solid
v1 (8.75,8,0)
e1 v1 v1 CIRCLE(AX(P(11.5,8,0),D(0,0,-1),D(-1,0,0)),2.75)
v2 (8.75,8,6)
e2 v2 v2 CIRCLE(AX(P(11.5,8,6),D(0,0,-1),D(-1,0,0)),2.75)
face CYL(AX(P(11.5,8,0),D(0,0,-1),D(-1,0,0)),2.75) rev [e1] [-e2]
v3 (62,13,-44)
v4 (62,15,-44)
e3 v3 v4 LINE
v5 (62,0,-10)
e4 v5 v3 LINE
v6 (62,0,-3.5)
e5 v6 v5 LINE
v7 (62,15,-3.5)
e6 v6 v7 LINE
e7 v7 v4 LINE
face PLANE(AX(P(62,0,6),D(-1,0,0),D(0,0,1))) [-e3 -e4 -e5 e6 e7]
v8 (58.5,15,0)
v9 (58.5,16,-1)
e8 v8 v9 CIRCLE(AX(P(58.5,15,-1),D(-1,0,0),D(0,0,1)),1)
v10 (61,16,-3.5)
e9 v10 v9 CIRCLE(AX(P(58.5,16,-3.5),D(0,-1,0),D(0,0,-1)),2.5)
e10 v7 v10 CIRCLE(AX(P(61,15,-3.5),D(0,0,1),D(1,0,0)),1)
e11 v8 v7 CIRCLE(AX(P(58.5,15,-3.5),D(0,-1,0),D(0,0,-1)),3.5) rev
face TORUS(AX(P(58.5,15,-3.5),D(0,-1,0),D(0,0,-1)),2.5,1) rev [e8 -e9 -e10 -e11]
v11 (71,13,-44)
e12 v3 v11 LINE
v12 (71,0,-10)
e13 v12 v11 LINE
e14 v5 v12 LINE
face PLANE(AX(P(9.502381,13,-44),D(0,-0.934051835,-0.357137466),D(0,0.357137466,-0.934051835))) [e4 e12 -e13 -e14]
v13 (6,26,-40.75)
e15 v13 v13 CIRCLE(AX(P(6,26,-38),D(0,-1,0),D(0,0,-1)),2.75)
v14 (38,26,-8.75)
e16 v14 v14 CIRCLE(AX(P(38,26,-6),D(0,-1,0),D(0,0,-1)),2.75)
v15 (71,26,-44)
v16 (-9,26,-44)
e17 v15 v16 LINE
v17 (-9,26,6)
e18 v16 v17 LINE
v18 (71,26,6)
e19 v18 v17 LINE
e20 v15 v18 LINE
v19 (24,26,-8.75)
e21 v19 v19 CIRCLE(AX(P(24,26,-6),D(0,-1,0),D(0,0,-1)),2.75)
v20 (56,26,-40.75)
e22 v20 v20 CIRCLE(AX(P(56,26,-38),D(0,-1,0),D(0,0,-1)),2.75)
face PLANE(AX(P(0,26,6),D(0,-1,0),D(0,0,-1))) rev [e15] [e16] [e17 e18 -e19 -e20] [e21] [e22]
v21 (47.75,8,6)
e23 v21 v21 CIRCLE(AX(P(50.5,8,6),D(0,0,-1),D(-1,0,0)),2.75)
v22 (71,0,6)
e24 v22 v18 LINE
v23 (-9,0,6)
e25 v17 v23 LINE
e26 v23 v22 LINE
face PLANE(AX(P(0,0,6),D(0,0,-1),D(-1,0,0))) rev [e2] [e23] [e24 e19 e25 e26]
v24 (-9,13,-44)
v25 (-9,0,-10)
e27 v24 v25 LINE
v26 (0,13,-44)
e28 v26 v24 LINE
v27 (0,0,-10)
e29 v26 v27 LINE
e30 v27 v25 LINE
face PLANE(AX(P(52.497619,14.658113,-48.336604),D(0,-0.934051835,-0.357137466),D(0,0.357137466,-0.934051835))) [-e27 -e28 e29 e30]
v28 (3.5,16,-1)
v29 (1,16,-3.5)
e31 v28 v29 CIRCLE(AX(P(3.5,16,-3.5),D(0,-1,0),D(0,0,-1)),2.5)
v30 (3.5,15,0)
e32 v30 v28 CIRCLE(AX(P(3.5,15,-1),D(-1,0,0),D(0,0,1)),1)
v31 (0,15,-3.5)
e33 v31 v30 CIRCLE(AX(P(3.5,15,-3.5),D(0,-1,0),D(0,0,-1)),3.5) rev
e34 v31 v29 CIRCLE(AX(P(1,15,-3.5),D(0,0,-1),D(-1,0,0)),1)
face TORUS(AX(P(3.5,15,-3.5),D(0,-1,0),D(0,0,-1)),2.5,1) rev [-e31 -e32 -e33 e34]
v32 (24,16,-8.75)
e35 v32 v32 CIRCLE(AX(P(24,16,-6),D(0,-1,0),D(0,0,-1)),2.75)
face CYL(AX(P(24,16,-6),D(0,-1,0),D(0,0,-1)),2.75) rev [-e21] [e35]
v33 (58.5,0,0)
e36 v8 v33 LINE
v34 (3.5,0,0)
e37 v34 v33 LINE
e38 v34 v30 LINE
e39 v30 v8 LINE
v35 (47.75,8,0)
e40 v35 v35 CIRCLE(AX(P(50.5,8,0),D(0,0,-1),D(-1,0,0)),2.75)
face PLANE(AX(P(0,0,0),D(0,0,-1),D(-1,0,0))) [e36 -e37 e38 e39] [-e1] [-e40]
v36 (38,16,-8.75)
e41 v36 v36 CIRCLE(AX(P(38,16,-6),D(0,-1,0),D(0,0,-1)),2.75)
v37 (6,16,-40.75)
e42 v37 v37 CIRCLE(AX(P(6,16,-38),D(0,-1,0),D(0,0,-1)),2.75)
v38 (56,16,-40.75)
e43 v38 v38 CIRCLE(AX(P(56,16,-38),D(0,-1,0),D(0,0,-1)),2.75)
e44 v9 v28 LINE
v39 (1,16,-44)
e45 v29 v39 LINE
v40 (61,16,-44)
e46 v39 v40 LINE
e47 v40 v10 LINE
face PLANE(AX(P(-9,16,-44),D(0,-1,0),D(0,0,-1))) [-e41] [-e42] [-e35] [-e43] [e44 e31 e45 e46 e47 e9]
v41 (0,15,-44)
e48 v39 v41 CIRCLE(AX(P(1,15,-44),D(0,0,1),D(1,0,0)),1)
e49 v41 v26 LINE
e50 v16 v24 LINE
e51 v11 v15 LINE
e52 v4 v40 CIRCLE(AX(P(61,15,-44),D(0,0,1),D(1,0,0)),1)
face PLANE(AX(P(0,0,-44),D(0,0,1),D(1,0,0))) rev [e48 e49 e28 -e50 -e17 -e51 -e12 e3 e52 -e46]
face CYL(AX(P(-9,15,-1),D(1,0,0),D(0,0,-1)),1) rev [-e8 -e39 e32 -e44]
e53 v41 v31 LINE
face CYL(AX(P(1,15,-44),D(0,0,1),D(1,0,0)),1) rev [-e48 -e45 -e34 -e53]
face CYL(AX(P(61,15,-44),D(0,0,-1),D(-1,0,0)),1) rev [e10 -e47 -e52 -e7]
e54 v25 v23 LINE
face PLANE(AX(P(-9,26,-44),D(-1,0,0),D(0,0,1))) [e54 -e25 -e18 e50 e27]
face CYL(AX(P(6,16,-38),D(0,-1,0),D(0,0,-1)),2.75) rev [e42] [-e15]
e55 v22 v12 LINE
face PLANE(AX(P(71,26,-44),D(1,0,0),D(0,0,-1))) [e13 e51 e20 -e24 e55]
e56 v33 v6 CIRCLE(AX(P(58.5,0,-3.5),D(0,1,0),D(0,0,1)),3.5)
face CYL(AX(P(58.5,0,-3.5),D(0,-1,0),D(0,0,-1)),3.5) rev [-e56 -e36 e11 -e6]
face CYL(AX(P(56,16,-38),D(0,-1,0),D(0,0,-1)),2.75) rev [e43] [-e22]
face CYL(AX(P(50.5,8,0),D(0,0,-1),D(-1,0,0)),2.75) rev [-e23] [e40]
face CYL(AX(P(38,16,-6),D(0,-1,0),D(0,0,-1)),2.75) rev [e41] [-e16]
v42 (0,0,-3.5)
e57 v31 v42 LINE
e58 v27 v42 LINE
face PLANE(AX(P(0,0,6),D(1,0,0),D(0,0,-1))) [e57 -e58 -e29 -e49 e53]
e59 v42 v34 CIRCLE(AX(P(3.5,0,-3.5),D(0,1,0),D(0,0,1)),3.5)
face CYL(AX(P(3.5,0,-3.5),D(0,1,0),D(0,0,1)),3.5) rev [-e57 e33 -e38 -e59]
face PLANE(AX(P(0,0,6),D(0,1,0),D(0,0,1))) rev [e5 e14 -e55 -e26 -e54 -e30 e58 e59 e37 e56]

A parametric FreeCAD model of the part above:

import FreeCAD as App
import Part
import Sketcher

V = App.Vector
Q = App.Units.Quantity


def edges_at(feature, points):
    """Names of the edges that pass closest to the given points."""
    edges = feature.Shape.Edges
    near = lambda p: min(range(len(edges)), key=lambda i: edges[i].distToShape(Part.Vertex(*p))[0])
    return sorted({f"Edge{near(p) + 1}" for p in points})

doc = App.newDocument("Part")
params = doc.addObject("Spreadsheet::Sheet", "Params")
for row, (alias, value) in enumerate([
    ("sketch1_width", "62 mm"),
    ("sketch1_height", "26 mm"),
    ("pad1_length", "6 mm"),
    ("sketch2_width", "80 mm"),
    ("sketch2_height", "10 mm"),
    ("pad2_length", "50 mm"),
    ("sketch3_diameter", "5.5 mm"),
    ("hole_diameter", "5.5 mm"),
    ("hole_depth", "10 mm"),
    ("sketch4_width", "3 mm"),
    ("sketch4_width2", "16 mm"),
    ("sketch4_height", "50 mm"),
    ("pad3_length", "9 mm"),
    ("sketch5_width", "3 mm"),
    ("sketch5_width2", "16 mm"),
    ("sketch5_height", "50 mm"),
    ("pad4_length", "9 mm"),
    ("sketch6_diameter", "5.5 mm"),
    ("hole2_diameter", "5.5 mm"),
    ("hole2_depth", "10 mm"),
    ("fillet_radius", "3.5 mm"),
    ("fillet2_radius", "1 mm"),
], start=1):
    params.set(f"A{row}", alias)
    params.set(f"B{row}", "=" + value)
    params.setAlias(f"B{row}", alias)

body = doc.addObject("PartDesign::Body", "Body")

sketch1 = body.newObject("Sketcher::SketchObject", "Sketch")
sketch1.AttachmentSupport = (doc.getObject("XY_Plane"), [""])
sketch1.MapMode = "FlatFace"
sketch1.addGeometry(Part.LineSegment(V(0, 26, 0), V(0, 0, 0)), False)
sketch1.addGeometry(Part.LineSegment(V(0, 0, 0), V(62, 0, 0)), False)
sketch1.addGeometry(Part.LineSegment(V(62, 0, 0), V(62, 26, 0)), False)
sketch1.addGeometry(Part.LineSegment(V(62, 26, 0), V(0, 26, 0)), False)
sketch1.addConstraint(Sketcher.Constraint("Coincident", 0, 2, 1, 1))
sketch1.addConstraint(Sketcher.Constraint("Coincident", 1, 2, 2, 1))
sketch1.addConstraint(Sketcher.Constraint("Coincident", 2, 2, 3, 1))
sketch1.addConstraint(Sketcher.Constraint("Coincident", 3, 2, 0, 1))
sketch1.addConstraint(Sketcher.Constraint("Vertical", 0))
sketch1.addConstraint(Sketcher.Constraint("Horizontal", 1))
sketch1.addConstraint(Sketcher.Constraint("Vertical", 2))
sketch1.addConstraint(Sketcher.Constraint("Horizontal", 3))
sketch1.addConstraint(Sketcher.Constraint("Coincident", 0, 2, -1, 1))
sketch1.addConstraint(Sketcher.Constraint("DistanceX", 1, 1, 1, 2, Q("62 mm")))
sketch1.addConstraint(Sketcher.Constraint("DistanceY", 0, 2, 0, 1, Q("26 mm")))
sketch1.setExpression("Constraints[9]", "Params.sketch1_width")
sketch1.setExpression("Constraints[10]", "Params.sketch1_height")
pad1 = body.newObject("PartDesign::Pad", "Pad")
pad1.Profile = sketch1
pad1.setExpression("Length", "Params.pad1_length")

sketch2 = body.newObject("Sketcher::SketchObject", "Sketch001")
sketch2.AttachmentSupport = (doc.getObject("XY_Plane"), [""])
sketch2.MapMode = "FlatFace"
sketch2.AttachmentOffset = App.Placement(V(0, 0, 6), App.Rotation())
sketch2.addGeometry(Part.LineSegment(V(-9, 26, 0), V(-9, 16, 0)), False)
sketch2.addGeometry(Part.LineSegment(V(-9, 16, 0), V(71, 16, 0)), False)
sketch2.addGeometry(Part.LineSegment(V(71, 16, 0), V(71, 26, 0)), False)
sketch2.addGeometry(Part.LineSegment(V(71, 26, 0), V(-9, 26, 0)), False)
sketch2.addConstraint(Sketcher.Constraint("Coincident", 0, 2, 1, 1))
sketch2.addConstraint(Sketcher.Constraint("Coincident", 1, 2, 2, 1))
sketch2.addConstraint(Sketcher.Constraint("Coincident", 2, 2, 3, 1))
sketch2.addConstraint(Sketcher.Constraint("Coincident", 3, 2, 0, 1))
sketch2.addConstraint(Sketcher.Constraint("Vertical", 0))
sketch2.addConstraint(Sketcher.Constraint("Horizontal", 1))
sketch2.addConstraint(Sketcher.Constraint("Vertical", 2))
sketch2.addConstraint(Sketcher.Constraint("Horizontal", 3))
sketch2.addConstraint(Sketcher.Constraint("DistanceX", 1, 1, 1, 2, Q("80 mm")))
sketch2.addConstraint(Sketcher.Constraint("DistanceY", 0, 2, 0, 1, Q("10 mm")))
sketch2.addConstraint(Sketcher.Constraint("DistanceX", 0, 2, -1, 1, Q("9 mm")))
sketch2.addConstraint(Sketcher.Constraint("DistanceY", -1, 1, 0, 2, Q("16 mm")))
sketch2.setExpression("Constraints[8]", "Params.sketch2_width")
sketch2.setExpression("Constraints[9]", "Params.sketch2_height")
pad2 = body.newObject("PartDesign::Pad", "Pad001")
pad2.Profile = sketch2
pad2.setExpression("Length", "Params.pad2_length")
pad2.Reversed = True

sketch3 = body.newObject("Sketcher::SketchObject", "Sketch002")
sketch3.AttachmentSupport = (doc.getObject("XY_Plane"), [""])
sketch3.MapMode = "FlatFace"
sketch3.addGeometry(Part.Circle(V(50.5, 8, 0), V(0, 0, 1), 2.8), False)
sketch3.addGeometry(Part.Circle(V(11.5, 8, 0), V(0, 0, 1), 2.8), False)
sketch3.addConstraint(Sketcher.Constraint("Equal", 0, 1))
sketch3.addConstraint(Sketcher.Constraint("Horizontal", 0, 3, 1, 3))
sketch3.addConstraint(Sketcher.Constraint("Diameter", 0, Q("5.5 mm")))
sketch3.addConstraint(Sketcher.Constraint("DistanceY", -1, 1, 0, 3, Q("8 mm")))
sketch3.addConstraint(Sketcher.Constraint("DistanceX", 1, 3, 0, 3, Q("39 mm")))
sketch3.addConstraint(Sketcher.Constraint("DistanceX", -1, 1, 0, 3, Q("50.5 mm")))
sketch3.setExpression("Constraints[2]", "Params.sketch3_diameter")
doc.recompute()
hole = body.newObject("PartDesign::Hole", "Hole")
hole.Profile = sketch3
hole.ThreadType = "None"
hole.setExpression("Diameter", "Params.hole_diameter")
hole.DepthType = "Dimension"
hole.setExpression("Depth", "Params.hole_depth")
hole.DrillPoint = "Angled"
hole.DrillPointAngle = 118
hole.Reversed = True

sketch4 = body.newObject("Sketcher::SketchObject", "Sketch003")
sketch4.AttachmentSupport = (doc.getObject("YZ_Plane"), [""])
sketch4.MapMode = "FlatFace"
sketch4.AttachmentOffset = App.Placement(V(0, 0, 71), App.Rotation())
sketch4.addGeometry(Part.LineSegment(V(0, 6, 0), V(0, -10, 0)), False)
sketch4.addGeometry(Part.LineSegment(V(0, -10, 0), V(13, -44, 0)), False)
sketch4.addGeometry(Part.LineSegment(V(13, -44, 0), V(16, -44, 0)), False)
sketch4.addGeometry(Part.LineSegment(V(16, -44, 0), V(16, 6, 0)), False)
sketch4.addGeometry(Part.LineSegment(V(16, 6, 0), V(0, 6, 0)), False)
sketch4.addConstraint(Sketcher.Constraint("Coincident", 0, 2, 1, 1))
sketch4.addConstraint(Sketcher.Constraint("Coincident", 1, 2, 2, 1))
sketch4.addConstraint(Sketcher.Constraint("Coincident", 2, 2, 3, 1))
sketch4.addConstraint(Sketcher.Constraint("Coincident", 3, 2, 4, 1))
sketch4.addConstraint(Sketcher.Constraint("Coincident", 4, 2, 0, 1))
sketch4.addConstraint(Sketcher.Constraint("Vertical", 0))
sketch4.addConstraint(Sketcher.Constraint("Horizontal", 2))
sketch4.addConstraint(Sketcher.Constraint("Vertical", 3))
sketch4.addConstraint(Sketcher.Constraint("Horizontal", 4))
sketch4.addConstraint(Sketcher.Constraint("PointOnObject", 0, 2, -2))
sketch4.addConstraint(Sketcher.Constraint("Equal", 4, 0))
sketch4.addConstraint(Sketcher.Constraint("DistanceX", 2, 1, 2, 2, Q("3 mm")))
sketch4.addConstraint(Sketcher.Constraint("DistanceX", 4, 2, 4, 1, Q("16 mm")))
sketch4.addConstraint(Sketcher.Constraint("DistanceY", 3, 1, 3, 2, Q("50 mm")))
sketch4.addConstraint(Sketcher.Constraint("DistanceY", 0, 2, -1, 1, Q("10 mm")))
sketch4.setExpression("Constraints[11]", "Params.sketch4_width")
sketch4.setExpression("Constraints[12]", "Params.sketch4_width2")
sketch4.setExpression("Constraints[13]", "Params.sketch4_height")
pad3 = body.newObject("PartDesign::Pad", "Pad002")
pad3.Profile = sketch4
pad3.setExpression("Length", "Params.pad3_length")
pad3.Reversed = True

sketch5 = body.newObject("Sketcher::SketchObject", "Sketch004")
sketch5.AttachmentSupport = (doc.getObject("YZ_Plane"), [""])
sketch5.MapMode = "FlatFace"
sketch5.AttachmentOffset = App.Placement(V(0, 0, -9), App.Rotation())
sketch5.addGeometry(Part.LineSegment(V(0, 6, 0), V(0, -10, 0)), False)
sketch5.addGeometry(Part.LineSegment(V(0, -10, 0), V(13, -44, 0)), False)
sketch5.addGeometry(Part.LineSegment(V(13, -44, 0), V(16, -44, 0)), False)
sketch5.addGeometry(Part.LineSegment(V(16, -44, 0), V(16, 6, 0)), False)
sketch5.addGeometry(Part.LineSegment(V(16, 6, 0), V(0, 6, 0)), False)
sketch5.addConstraint(Sketcher.Constraint("Coincident", 0, 2, 1, 1))
sketch5.addConstraint(Sketcher.Constraint("Coincident", 1, 2, 2, 1))
sketch5.addConstraint(Sketcher.Constraint("Coincident", 2, 2, 3, 1))
sketch5.addConstraint(Sketcher.Constraint("Coincident", 3, 2, 4, 1))
sketch5.addConstraint(Sketcher.Constraint("Coincident", 4, 2, 0, 1))
sketch5.addConstraint(Sketcher.Constraint("Vertical", 0))
sketch5.addConstraint(Sketcher.Constraint("Horizontal", 2))
sketch5.addConstraint(Sketcher.Constraint("Vertical", 3))
sketch5.addConstraint(Sketcher.Constraint("Horizontal", 4))
sketch5.addConstraint(Sketcher.Constraint("PointOnObject", 0, 2, -2))
sketch5.addConstraint(Sketcher.Constraint("Equal", 4, 0))
sketch5.addConstraint(Sketcher.Constraint("DistanceX", 2, 1, 2, 2, Q("3 mm")))
sketch5.addConstraint(Sketcher.Constraint("DistanceX", 4, 2, 4, 1, Q("16 mm")))
sketch5.addConstraint(Sketcher.Constraint("DistanceY", 3, 1, 3, 2, Q("50 mm")))
sketch5.addConstraint(Sketcher.Constraint("DistanceY", 0, 2, -1, 1, Q("10 mm")))
sketch5.setExpression("Constraints[11]", "Params.sketch5_width")
sketch5.setExpression("Constraints[12]", "Params.sketch5_width2")
sketch5.setExpression("Constraints[13]", "Params.sketch5_height")
pad4 = body.newObject("PartDesign::Pad", "Pad003")
pad4.Profile = sketch5
pad4.setExpression("Length", "Params.pad4_length")

sketch6 = body.newObject("Sketcher::SketchObject", "Sketch005")
sketch6.AttachmentSupport = (doc.getObject("XZ_Plane"), [""])
sketch6.MapMode = "FlatFace"
sketch6.AttachmentOffset = App.Placement(V(0, 0, -16), App.Rotation())
sketch6.addGeometry(Part.Circle(V(38, -6, 0), V(0, 0, 1), 2.8), False)
sketch6.addGeometry(Part.Circle(V(24, -6, 0), V(0, 0, 1), 2.8), False)
sketch6.addGeometry(Part.Circle(V(56, -38, 0), V(0, 0, 1), 2.8), False)
sketch6.addGeometry(Part.Circle(V(6, -38, 0), V(0, 0, 1), 2.8), False)
sketch6.addConstraint(Sketcher.Constraint("Equal", 0, 1))
sketch6.addConstraint(Sketcher.Constraint("Equal", 1, 2))
sketch6.addConstraint(Sketcher.Constraint("Equal", 2, 3))
sketch6.addConstraint(Sketcher.Constraint("Horizontal", 0, 3, 1, 3))
sketch6.addConstraint(Sketcher.Constraint("Horizontal", 2, 3, 3, 3))
sketch6.addConstraint(Sketcher.Constraint("Diameter", 0, Q("5.5 mm")))
sketch6.addConstraint(Sketcher.Constraint("DistanceX", -1, 1, 0, 3, Q("38 mm")))
sketch6.addConstraint(Sketcher.Constraint("DistanceY", 0, 3, -1, 1, Q("6 mm")))
sketch6.addConstraint(Sketcher.Constraint("DistanceX", -1, 1, 1, 3, Q("24 mm")))
sketch6.addConstraint(Sketcher.Constraint("DistanceX", -1, 1, 2, 3, Q("56 mm")))
sketch6.addConstraint(Sketcher.Constraint("DistanceY", 2, 3, -1, 1, Q("38 mm")))
sketch6.addConstraint(Sketcher.Constraint("DistanceX", -1, 1, 3, 3, Q("6 mm")))
sketch6.setExpression("Constraints[5]", "Params.sketch6_diameter")
doc.recompute()
hole2 = body.newObject("PartDesign::Hole", "Hole001")
hole2.Profile = sketch6
hole2.ThreadType = "None"
hole2.setExpression("Diameter", "Params.hole2_diameter")
hole2.DepthType = "Dimension"
hole2.setExpression("Depth", "Params.hole2_depth")
hole2.DrillPoint = "Angled"
hole2.DrillPointAngle = 118
doc.recompute()

fillet = body.newObject("PartDesign::Fillet", "Fillet")
fillet.Base = (hole2, edges_at(hole2, [(0, 8, 0), (62, 8, 0)]))
fillet.setExpression("Radius", "Params.fillet_radius")
doc.recompute()

fillet2 = body.newObject("PartDesign::Fillet", "Fillet001")
fillet2.Base = (fillet, edges_at(fillet, [
    (0, 16, -23.75),
    (31, 16, 0),
    (1.025, 16, -1.025),
    (60.975, 16, -1.025),
    (62, 16, -23.75),
]))
fillet2.setExpression("Radius", "Params.fillet2_radius")

doc.recompute()
